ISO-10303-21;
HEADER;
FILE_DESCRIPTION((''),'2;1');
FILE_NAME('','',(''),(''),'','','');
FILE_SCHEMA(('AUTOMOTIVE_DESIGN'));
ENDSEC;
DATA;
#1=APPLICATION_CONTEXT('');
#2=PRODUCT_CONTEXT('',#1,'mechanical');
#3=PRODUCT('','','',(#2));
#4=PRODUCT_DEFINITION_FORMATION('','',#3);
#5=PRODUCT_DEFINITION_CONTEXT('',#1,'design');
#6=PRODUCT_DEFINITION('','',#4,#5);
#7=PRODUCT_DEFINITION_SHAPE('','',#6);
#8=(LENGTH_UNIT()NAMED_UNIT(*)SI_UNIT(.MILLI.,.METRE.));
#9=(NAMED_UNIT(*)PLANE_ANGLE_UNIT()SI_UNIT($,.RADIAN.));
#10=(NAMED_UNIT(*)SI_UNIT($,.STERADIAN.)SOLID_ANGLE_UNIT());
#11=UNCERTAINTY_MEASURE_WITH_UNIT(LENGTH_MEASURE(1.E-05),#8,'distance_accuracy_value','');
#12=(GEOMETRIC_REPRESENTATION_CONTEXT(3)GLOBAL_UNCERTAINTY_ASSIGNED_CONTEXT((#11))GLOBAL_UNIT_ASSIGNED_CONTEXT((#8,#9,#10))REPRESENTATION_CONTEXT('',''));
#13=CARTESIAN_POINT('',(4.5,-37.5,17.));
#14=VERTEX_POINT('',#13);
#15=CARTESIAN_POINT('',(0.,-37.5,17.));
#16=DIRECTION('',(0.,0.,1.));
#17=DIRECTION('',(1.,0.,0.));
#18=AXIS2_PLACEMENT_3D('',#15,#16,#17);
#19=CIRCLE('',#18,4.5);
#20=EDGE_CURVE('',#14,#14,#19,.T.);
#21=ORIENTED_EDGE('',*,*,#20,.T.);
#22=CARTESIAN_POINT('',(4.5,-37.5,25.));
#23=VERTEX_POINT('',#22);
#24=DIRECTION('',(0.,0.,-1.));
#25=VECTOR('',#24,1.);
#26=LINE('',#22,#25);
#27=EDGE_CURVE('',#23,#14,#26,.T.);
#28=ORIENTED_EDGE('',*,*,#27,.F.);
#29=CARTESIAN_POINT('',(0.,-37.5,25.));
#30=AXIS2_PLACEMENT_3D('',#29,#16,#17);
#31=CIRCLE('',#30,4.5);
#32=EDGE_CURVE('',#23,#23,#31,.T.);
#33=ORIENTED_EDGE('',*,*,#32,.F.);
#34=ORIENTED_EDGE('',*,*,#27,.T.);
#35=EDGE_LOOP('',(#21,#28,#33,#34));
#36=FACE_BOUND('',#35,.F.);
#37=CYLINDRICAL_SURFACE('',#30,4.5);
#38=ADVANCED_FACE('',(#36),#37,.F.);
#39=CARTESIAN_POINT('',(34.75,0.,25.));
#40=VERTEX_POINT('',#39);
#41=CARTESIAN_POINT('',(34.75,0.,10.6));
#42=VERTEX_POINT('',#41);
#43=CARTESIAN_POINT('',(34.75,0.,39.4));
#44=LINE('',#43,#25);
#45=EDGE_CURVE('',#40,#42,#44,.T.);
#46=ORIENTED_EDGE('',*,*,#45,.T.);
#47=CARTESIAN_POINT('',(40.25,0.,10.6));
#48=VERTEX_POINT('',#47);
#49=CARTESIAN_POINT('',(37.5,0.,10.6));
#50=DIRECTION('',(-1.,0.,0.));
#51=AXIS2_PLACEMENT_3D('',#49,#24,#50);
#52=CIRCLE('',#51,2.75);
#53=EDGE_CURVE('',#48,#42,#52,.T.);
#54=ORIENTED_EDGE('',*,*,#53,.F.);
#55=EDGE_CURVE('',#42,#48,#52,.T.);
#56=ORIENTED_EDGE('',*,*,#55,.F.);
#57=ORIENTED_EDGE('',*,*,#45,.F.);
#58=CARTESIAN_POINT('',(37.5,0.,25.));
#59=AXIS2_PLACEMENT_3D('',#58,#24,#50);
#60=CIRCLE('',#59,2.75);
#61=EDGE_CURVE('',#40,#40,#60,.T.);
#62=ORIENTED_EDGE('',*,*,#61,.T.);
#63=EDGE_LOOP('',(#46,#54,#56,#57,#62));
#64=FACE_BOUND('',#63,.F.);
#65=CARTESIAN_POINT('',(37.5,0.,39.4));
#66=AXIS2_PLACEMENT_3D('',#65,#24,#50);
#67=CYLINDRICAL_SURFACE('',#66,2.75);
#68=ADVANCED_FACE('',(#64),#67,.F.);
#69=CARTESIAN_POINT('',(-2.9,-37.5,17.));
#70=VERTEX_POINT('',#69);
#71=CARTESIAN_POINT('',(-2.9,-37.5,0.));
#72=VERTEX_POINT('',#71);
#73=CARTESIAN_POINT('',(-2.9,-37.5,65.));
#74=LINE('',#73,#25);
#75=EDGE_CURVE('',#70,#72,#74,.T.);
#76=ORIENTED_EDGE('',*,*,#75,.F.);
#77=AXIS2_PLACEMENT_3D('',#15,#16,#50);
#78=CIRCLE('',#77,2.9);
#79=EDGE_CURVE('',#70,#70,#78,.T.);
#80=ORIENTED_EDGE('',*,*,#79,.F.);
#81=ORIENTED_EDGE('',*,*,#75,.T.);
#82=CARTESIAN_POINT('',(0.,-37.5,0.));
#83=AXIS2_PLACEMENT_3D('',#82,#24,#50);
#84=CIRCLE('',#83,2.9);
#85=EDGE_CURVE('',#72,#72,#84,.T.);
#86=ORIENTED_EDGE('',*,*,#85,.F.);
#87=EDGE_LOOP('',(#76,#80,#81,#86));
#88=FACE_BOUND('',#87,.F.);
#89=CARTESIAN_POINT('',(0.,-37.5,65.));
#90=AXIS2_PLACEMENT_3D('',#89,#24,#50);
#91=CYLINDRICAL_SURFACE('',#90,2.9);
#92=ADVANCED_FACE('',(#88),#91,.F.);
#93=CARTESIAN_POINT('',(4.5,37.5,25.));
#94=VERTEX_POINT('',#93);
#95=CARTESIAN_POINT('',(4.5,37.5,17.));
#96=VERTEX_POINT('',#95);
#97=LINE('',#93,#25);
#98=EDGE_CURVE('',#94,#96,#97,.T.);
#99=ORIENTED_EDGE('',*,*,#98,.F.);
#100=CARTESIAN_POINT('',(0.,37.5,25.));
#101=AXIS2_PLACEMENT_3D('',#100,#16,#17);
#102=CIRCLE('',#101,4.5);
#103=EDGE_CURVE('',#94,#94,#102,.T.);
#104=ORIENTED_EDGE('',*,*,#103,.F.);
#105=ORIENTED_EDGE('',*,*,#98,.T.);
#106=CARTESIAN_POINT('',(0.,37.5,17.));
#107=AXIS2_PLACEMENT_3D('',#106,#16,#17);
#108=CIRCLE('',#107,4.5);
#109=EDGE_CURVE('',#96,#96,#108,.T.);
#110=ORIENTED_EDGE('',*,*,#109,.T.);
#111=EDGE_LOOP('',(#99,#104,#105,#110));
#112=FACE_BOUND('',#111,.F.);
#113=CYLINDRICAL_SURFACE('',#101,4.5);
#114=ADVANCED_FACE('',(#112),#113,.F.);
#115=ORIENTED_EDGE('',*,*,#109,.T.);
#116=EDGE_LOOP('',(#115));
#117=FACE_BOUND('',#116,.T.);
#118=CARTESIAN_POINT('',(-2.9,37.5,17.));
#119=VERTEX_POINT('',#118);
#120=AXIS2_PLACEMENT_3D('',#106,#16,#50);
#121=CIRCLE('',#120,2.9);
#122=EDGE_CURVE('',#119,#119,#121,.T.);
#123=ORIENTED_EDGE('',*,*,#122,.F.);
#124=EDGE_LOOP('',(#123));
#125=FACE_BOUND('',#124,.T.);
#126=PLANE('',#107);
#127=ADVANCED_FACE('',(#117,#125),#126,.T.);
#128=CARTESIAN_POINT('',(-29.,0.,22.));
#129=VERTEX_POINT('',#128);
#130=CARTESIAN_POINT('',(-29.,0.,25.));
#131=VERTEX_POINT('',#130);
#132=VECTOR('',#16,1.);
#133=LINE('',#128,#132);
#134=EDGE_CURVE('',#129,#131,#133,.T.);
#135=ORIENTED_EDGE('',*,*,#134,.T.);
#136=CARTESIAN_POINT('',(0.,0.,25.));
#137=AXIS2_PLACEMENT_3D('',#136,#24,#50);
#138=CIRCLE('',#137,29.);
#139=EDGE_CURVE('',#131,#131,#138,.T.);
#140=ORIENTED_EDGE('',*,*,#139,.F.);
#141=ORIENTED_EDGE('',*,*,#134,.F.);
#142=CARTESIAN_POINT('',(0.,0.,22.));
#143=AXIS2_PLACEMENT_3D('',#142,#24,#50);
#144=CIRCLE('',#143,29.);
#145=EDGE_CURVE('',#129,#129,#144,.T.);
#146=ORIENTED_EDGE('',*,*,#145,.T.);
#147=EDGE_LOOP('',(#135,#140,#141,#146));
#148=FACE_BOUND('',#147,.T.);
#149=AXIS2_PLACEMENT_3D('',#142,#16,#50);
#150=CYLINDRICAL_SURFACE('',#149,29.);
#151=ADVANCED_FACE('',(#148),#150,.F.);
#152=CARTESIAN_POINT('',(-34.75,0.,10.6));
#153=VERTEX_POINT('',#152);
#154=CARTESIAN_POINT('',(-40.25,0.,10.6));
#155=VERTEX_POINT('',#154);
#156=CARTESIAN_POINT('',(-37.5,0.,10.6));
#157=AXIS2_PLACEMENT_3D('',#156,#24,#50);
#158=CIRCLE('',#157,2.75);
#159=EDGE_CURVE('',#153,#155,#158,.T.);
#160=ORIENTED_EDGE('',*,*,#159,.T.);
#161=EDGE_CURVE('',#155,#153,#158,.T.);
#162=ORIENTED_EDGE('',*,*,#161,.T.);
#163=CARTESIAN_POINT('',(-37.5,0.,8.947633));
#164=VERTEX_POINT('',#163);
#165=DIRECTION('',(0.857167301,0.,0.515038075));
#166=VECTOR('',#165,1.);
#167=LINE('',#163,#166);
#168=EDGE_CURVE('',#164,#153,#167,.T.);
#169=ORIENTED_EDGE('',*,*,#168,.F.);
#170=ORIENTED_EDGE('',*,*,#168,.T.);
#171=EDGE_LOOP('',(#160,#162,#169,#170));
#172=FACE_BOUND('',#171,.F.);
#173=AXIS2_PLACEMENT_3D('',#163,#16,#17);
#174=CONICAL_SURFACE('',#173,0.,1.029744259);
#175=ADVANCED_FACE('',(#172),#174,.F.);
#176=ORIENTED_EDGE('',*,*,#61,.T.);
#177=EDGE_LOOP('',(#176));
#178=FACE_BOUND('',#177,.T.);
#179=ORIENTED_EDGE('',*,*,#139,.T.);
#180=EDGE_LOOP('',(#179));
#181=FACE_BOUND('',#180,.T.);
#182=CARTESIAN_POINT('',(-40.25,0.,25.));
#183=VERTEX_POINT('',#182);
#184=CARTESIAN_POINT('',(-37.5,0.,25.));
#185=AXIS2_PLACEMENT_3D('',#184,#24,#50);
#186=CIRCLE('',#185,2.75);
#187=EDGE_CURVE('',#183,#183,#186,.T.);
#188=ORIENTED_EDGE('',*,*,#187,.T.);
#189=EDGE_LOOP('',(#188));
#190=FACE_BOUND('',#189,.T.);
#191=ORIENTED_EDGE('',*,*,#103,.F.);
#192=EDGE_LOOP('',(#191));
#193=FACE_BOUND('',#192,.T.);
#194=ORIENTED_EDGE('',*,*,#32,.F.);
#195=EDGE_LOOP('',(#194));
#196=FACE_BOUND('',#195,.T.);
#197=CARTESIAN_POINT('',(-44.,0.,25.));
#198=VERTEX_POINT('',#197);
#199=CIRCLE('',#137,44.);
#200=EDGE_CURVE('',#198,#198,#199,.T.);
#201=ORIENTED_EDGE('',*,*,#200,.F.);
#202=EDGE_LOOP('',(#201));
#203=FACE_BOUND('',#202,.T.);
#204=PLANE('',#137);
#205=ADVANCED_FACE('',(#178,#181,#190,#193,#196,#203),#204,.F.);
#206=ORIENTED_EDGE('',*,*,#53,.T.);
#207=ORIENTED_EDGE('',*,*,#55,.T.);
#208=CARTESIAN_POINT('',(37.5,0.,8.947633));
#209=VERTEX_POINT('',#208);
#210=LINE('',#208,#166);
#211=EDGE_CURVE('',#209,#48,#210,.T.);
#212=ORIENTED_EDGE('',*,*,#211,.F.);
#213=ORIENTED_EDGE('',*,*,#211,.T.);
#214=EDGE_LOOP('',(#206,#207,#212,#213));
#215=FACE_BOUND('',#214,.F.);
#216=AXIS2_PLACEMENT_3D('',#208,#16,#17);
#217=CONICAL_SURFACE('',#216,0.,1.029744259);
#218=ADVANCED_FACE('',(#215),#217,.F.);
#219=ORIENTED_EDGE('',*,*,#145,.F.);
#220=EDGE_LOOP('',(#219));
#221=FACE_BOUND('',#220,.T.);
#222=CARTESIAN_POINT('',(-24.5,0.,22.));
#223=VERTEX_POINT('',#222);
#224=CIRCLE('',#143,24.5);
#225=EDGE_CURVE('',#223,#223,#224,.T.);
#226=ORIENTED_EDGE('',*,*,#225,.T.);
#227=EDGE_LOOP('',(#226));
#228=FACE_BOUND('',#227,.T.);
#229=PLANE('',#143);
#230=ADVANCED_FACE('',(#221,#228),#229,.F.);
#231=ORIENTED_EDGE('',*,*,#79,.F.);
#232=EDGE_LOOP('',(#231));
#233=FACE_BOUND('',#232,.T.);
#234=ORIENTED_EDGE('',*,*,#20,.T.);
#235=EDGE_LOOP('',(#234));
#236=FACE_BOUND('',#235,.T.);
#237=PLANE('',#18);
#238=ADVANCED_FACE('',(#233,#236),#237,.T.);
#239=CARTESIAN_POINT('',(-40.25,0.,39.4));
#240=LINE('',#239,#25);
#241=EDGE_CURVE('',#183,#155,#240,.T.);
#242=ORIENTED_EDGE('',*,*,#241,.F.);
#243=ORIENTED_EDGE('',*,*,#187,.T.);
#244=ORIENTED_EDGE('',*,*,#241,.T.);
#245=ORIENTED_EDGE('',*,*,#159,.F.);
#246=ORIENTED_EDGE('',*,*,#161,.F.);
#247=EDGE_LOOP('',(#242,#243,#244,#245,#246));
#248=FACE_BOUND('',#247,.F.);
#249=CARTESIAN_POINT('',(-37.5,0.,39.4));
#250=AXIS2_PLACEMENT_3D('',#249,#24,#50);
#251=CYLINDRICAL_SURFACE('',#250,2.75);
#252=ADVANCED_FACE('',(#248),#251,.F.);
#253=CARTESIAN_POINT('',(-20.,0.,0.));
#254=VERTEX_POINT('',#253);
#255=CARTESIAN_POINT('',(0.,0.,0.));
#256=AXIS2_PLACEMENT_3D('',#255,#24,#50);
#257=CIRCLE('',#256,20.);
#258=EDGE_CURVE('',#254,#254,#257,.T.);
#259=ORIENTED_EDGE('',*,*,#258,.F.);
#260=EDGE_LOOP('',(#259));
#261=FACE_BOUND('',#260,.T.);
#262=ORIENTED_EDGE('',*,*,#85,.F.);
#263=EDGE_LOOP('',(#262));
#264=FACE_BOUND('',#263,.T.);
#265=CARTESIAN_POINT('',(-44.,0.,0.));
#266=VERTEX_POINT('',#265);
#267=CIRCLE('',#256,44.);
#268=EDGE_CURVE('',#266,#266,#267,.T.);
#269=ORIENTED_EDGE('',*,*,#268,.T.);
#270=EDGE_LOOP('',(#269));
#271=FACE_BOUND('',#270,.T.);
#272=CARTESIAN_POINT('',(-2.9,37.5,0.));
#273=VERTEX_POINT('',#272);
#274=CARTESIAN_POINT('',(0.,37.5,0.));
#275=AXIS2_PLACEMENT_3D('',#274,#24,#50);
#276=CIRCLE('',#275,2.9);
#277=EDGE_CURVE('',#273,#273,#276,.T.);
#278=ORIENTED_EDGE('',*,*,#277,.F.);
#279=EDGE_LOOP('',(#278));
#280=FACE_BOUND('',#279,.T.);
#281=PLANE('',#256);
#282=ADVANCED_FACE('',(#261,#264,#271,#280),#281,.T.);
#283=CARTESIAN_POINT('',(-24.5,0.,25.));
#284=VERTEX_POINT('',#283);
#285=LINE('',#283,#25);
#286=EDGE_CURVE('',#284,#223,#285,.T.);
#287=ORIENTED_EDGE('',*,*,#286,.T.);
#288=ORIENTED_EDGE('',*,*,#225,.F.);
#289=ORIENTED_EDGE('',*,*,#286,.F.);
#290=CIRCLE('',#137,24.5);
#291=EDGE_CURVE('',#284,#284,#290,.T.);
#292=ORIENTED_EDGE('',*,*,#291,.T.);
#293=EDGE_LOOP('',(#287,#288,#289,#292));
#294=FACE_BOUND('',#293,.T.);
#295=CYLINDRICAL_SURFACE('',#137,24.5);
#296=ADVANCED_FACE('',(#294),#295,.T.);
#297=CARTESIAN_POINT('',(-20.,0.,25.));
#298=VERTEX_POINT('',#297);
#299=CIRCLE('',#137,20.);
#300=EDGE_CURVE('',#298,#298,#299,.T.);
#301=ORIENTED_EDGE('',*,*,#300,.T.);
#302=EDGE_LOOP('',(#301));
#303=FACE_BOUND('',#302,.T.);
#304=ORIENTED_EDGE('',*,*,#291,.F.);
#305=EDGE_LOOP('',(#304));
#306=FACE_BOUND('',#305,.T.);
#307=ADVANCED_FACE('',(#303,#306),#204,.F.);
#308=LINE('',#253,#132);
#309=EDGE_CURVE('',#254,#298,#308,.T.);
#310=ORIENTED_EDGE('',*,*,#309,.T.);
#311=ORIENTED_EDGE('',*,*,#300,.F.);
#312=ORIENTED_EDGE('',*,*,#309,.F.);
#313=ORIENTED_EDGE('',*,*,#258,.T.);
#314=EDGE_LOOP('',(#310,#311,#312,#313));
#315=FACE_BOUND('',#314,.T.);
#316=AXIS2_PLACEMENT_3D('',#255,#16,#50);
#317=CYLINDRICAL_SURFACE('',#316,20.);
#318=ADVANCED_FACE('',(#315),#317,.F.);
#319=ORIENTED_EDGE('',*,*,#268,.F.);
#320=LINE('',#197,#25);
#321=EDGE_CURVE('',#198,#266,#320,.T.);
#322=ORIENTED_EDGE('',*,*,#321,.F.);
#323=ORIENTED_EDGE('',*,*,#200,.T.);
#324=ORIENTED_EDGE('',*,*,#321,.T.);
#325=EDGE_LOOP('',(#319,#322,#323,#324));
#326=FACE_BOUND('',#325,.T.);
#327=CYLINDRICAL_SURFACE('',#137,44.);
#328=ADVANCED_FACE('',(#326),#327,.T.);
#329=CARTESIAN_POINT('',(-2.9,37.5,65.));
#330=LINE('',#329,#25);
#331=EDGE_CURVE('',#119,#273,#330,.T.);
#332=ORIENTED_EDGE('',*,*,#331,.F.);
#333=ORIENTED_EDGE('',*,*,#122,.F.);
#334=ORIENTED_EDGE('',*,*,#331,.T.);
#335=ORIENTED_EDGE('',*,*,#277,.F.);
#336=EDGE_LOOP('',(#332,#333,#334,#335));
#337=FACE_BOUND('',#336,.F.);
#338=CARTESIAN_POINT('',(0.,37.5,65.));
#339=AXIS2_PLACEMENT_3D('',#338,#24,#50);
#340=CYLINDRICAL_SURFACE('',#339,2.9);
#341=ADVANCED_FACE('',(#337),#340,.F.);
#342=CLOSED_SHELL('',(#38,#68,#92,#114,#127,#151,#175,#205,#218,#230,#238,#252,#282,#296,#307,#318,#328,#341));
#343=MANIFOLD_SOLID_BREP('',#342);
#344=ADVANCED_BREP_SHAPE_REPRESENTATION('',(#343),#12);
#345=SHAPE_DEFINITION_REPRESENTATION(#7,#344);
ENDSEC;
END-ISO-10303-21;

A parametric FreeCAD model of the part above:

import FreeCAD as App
import Part
import Sketcher
from FreeCAD import Vector
Q = App.Units.Quantity


def add_polygon(sketch, points):
    """Adds a closed chain of lines whose ends are joined by coincident constraints."""
    first, n = sketch.GeometryCount, len(points)
    for a, b in zip(points, points[1:] + points[:1]):
        sketch.addGeometry(Part.LineSegment(App.Vector(*a, 0), App.Vector(*b, 0)), False)
    for i in range(n):
        sketch.addConstraint(Sketcher.Constraint("Coincident", first + i, 2, first + (i + 1) % n, 1))

doc = App.newDocument("Part")
params = doc.addObject("Spreadsheet::Sheet", "Params")
for row, (alias, value) in enumerate([
    ("sketch1_width", "15 mm"),
    ("sketch1_width2", "24 mm"),
    ("sketch1_height", "25 mm"),
    ("sketch1_height2", "3 mm"),
    ("revolution_angle", "360 deg"),
    ("sketch2_diameter", "5.8 mm"),
    ("hole_diameter", "5.8 mm"),
    ("hole_depth", "40 mm"),
    ("sketch3_diameter", "5.5 mm"),
    ("hole2_diameter", "5.5 mm"),
    ("hole2_depth", "14.4 mm"),
    ("sketch4_diameter", "9 mm"),
    ("sketch4_diameter2", "5.8 mm"),
    ("pocket1_length", "8 mm"),
], start=1):
    params.set(f"A{row}", alias)
    params.set(f"B{row}", "=" + value)
    params.setAlias(f"B{row}", alias)

body = doc.addObject("PartDesign::Body", "Body")

# Sketch on XZ plane
sketch1 = body.newObject("Sketcher::SketchObject", "Sketch")
sketch1.AttachmentSupport = (doc.getObject("XZ_Plane"), [""])
sketch1.MapMode = "FlatFace"
add_polygon(sketch1, [(-20, 0), (-20, 25), (-24.5, 25), (-24.5, 22), (-29, 22), (-29, 25), (-44, 25), (-44, 0)])  # lines 0-7
sketch1.addConstraint(Sketcher.Constraint("Vertical", 0))
sketch1.addConstraint(Sketcher.Constraint("Horizontal", 1))
sketch1.addConstraint(Sketcher.Constraint("Vertical", 2))
sketch1.addConstraint(Sketcher.Constraint("Horizontal", 3))
sketch1.addConstraint(Sketcher.Constraint("Vertical", 4))
sketch1.addConstraint(Sketcher.Constraint("Horizontal", 5))
sketch1.addConstraint(Sketcher.Constraint("Vertical", 6))
sketch1.addConstraint(Sketcher.Constraint("Horizontal", 7))
sketch1.addConstraint(Sketcher.Constraint("PointOnObject", 6, 2, -1))
sketch1.addConstraint(Sketcher.Constraint("Horizontal", 1, 2, 4, 2))
sketch1.addConstraint(Sketcher.Constraint("Equal", 1, 3))
sketch1.addConstraint(Sketcher.Constraint("DistanceX", 5, 2, 5, 1, Q("15 mm")))
sketch1.addConstraint(Sketcher.Constraint("DistanceX", 7, 1, 7, 2, Q("24 mm")))
sketch1.addConstraint(Sketcher.Constraint("DistanceY", 0, 1, 0, 2, Q("25 mm")))
sketch1.addConstraint(Sketcher.Constraint("DistanceY", 2, 2, 2, 1, Q("3 mm")))
sketch1.addConstraint(Sketcher.Constraint("DistanceX", 0, 2, -1, 1, Q("20 mm")))
sketch1.setExpression("Constraints[19]", "Params.sketch1_width")
sketch1.setExpression("Constraints[20]", "Params.sketch1_width2")
sketch1.setExpression("Constraints[21]", "Params.sketch1_height")
sketch1.setExpression("Constraints[22]", "Params.sketch1_height2")
revolution = body.newObject("PartDesign::Revolution", "Revolution")
revolution.Profile = sketch1
revolution.ReferenceAxis = (sketch1, ["V_Axis"])
revolution.setExpression("Angle", "Params.revolution_angle")

# Sketch on XY plane
sketch2 = body.newObject("Sketcher::SketchObject", "Sketch001")
sketch2.AttachmentSupport = (doc.getObject("XY_Plane"), [""])
sketch2.MapMode = "FlatFace"
sketch2.AttachmentOffset = App.Placement(Vector(0, 0, 25), App.Rotation())
sketch2.addGeometry(Part.Circle(Vector(0, 37.5, 0), Vector(0, 0, 1), 2.9), False)
sketch2.addGeometry(Part.Circle(Vector(0, -37.5, 0), Vector(0, 0, 1), 2.9), False)
sketch2.addConstraint(Sketcher.Constraint("Equal", 0, 1))
sketch2.addConstraint(Sketcher.Constraint("Symmetric", 0, 3, 1, 3, -1, 1))
sketch2.addConstraint(Sketcher.Constraint("PointOnObject", 0, 3, -2))
sketch2.addConstraint(Sketcher.Constraint("Diameter", 0, Q("5.8 mm")))
sketch2.addConstraint(Sketcher.Constraint("DistanceY", 1, 3, 0, 3, Q("75 mm")))
sketch2.setExpression("Constraints[3]", "Params.sketch2_diameter")
doc.recompute()
hole = body.newObject("PartDesign::Hole", "Hole")
hole.Profile = sketch2
hole.ThreadType = "None"
hole.setExpression("Diameter", "Params.hole_diameter")
hole.DepthType = "Dimension"
hole.setExpression("Depth", "Params.hole_depth")
hole.DrillPoint = "Angled"
hole.DrillPointAngle = 118

# Sketch on XY plane
sketch3 = body.newObject("Sketcher::SketchObject", "Sketch002")
sketch3.AttachmentSupport = (doc.getObject("XY_Plane"), [""])
sketch3.MapMode = "FlatFace"
sketch3.AttachmentOffset = App.Placement(Vector(0, 0, 25), App.Rotation())
sketch3.addGeometry(Part.Circle(Vector(-37.5, 0, 0), Vector(0, 0, 1), 2.8), False)
sketch3.addGeometry(Part.Circle(Vector(37.5, 0, 0), Vector(0, 0, 1), 2.8), False)
sketch3.addConstraint(Sketcher.Constraint("Equal", 0, 1))
sketch3.addConstraint(Sketcher.Constraint("Symmetric", 0, 3, 1, 3, -1, 1))
sketch3.addConstraint(Sketcher.Constraint("PointOnObject", 0, 3, -1))
sketch3.addConstraint(Sketcher.Constraint("Diameter", 0, Q("5.5 mm")))
sketch3.addConstraint(Sketcher.Constraint("DistanceX", 0, 3, 1, 3, Q("75 mm")))
sketch3.setExpression("Constraints[3]", "Params.sketch3_diameter")
doc.recompute()
hole2 = body.newObject("PartDesign::Hole", "Hole001")
hole2.Profile = sketch3
hole2.ThreadType = "None"
hole2.setExpression("Diameter", "Params.hole2_diameter")
hole2.DepthType = "Dimension"
hole2.setExpression("Depth", "Params.hole2_depth")
hole2.DrillPoint = "Angled"
hole2.DrillPointAngle = 118

# Sketch on XY plane
sketch4 = body.newObject("Sketcher::SketchObject", "Sketch003")
sketch4.AttachmentSupport = (doc.getObject("XY_Plane"), [""])
sketch4.MapMode = "FlatFace"
sketch4.AttachmentOffset = App.Placement(Vector(0, 0, 25), App.Rotation())
sketch4.addGeometry(Part.Circle(Vector(0, 37.5, 0), Vector(0, 0, 1), 4.5), False)
sketch4.addGeometry(Part.Circle(Vector(0, 37.5, 0), Vector(0, 0, 1), 2.9), False)
sketch4.addGeometry(Part.Circle(Vector(0, -37.5, 0), Vector(0, 0, 1), 4.5), False)
sketch4.addGeometry(Part.Circle(Vector(0, -37.5, 0), Vector(0, 0, 1), 2.9), False)
sketch4.addConstraint(Sketcher.Constraint("Coincident", 1, 3, 0, 3))
sketch4.addConstraint(Sketcher.Constraint("Coincident", 3, 3, 2, 3))
sketch4.addConstraint(Sketcher.Constraint("Equal", 0, 2))
sketch4.addConstraint(Sketcher.Constraint("Equal", 1, 3))
sketch4.addConstraint(Sketcher.Constraint("Symmetric", 0, 3, 2, 3, -1, 1))
sketch4.addConstraint(Sketcher.Constraint("PointOnObject", 0, 3, -2))
sketch4.addConstraint(Sketcher.Constraint("Diameter", 0, Q("9 mm")))
sketch4.addConstraint(Sketcher.Constraint("Diameter", 1, Q("5.8 mm")))
sketch4.addConstraint(Sketcher.Constraint("DistanceY", 2, 3, 0, 3, Q("75 mm")))
sketch4.setExpression("Constraints[6]", "Params.sketch4_diameter")
sketch4.setExpression("Constraints[7]", "Params.sketch4_diameter2")
pocket1 = body.newObject("PartDesign::Pocket", "Pocket")
pocket1.Profile = sketch4
pocket1.setExpression("Length", "Params.pocket1_length")

doc.recompute()
